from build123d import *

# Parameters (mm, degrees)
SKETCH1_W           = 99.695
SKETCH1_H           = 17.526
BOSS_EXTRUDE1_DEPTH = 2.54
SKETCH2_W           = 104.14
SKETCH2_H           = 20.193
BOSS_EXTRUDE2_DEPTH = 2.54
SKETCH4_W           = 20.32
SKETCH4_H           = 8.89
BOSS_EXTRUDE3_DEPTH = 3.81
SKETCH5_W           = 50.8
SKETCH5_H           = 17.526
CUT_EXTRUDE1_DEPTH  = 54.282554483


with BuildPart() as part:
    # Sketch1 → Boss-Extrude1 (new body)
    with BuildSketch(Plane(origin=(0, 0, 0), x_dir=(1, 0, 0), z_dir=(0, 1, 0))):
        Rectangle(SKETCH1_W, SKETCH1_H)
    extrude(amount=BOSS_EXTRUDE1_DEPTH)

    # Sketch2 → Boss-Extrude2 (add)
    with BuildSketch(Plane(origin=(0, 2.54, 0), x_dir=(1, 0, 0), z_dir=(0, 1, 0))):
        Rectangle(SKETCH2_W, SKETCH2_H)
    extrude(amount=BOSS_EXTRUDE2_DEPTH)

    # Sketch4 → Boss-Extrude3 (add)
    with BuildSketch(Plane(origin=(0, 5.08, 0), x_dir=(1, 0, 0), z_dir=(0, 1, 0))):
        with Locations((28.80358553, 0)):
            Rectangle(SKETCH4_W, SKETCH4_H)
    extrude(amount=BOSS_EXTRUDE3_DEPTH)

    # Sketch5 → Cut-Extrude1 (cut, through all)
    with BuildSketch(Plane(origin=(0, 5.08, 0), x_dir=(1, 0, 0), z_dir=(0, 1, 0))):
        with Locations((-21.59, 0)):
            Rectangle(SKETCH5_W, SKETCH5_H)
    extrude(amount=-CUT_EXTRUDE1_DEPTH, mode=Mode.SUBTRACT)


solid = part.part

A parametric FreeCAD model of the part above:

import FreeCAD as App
import Part
import Sketcher

V = App.Vector
Q = App.Units.Quantity


def add_polygon(sketch, points):
    """Adds a closed chain of lines whose ends are joined by coincident constraints."""
    first, n = sketch.GeometryCount, len(points)
    for a, b in zip(points, points[1:] + points[:1]):
        sketch.addGeometry(Part.LineSegment(App.Vector(*a, 0), App.Vector(*b, 0)), False)
    for i in range(n):
        sketch.addConstraint(Sketcher.Constraint("Coincident", first + i, 2, first + (i + 1) % n, 1))

doc = App.newDocument("Part")
body = doc.addObject("PartDesign::Body", "Body")

sketch1 = body.newObject("Sketcher::SketchObject", "Sketch")
sketch1.AttachmentSupport = (doc.getObject("XZ_Plane"), [""])
sketch1.MapMode = "FlatFace"
add_polygon(sketch1, [(-49.8475, -8.763), (-49.8475, 8.763), (49.8475, 8.763), (49.8475, -8.763)])
sketch1.addConstraint(Sketcher.Constraint("Vertical", 0))
sketch1.addConstraint(Sketcher.Constraint("Horizontal", 1))
sketch1.addConstraint(Sketcher.Constraint("Vertical", 2))
sketch1.addConstraint(Sketcher.Constraint("Horizontal", 3))
sketch1.addConstraint(Sketcher.Constraint("Symmetric", 0, 2, 2, 2, -1, 1))
sketch1.addConstraint(Sketcher.Constraint("DistanceY", 0, 1, 0, 2, Q("0.69 in")))
sketch1.addConstraint(Sketcher.Constraint("DistanceX", 1, 1, 1, 2, Q("3.925 in")))
pad1 = body.newObject("PartDesign::Pad", "Pad")
pad1.Profile = sketch1
pad1.Length = Q("0.1 in")
pad1.Reversed = True

sketch2 = body.newObject("Sketcher::SketchObject", "Sketch001")
sketch2.AttachmentSupport = (doc.getObject("XZ_Plane"), [""])
sketch2.MapMode = "FlatFace"
sketch2.AttachmentOffset = App.Placement(V(0, 0, -0.1 * 25.4), App.Rotation())
add_polygon(sketch2, [(-52.07, -10.0965), (-52.07, 10.0965), (52.07, 10.0965), (52.07, -10.0965)])
sketch2.addConstraint(Sketcher.Constraint("Vertical", 0))
sketch2.addConstraint(Sketcher.Constraint("Horizontal", 1))
sketch2.addConstraint(Sketcher.Constraint("Vertical", 2))
sketch2.addConstraint(Sketcher.Constraint("Horizontal", 3))
sketch2.addConstraint(Sketcher.Constraint("Symmetric", 0, 2, 2, 2, -1, 1))
sketch2.addConstraint(Sketcher.Constraint("DistanceX", 1, 1, 1, 2, Q("4.1 in")))
sketch2.addConstraint(Sketcher.Constraint("DistanceY", 0, 1, 0, 2, Q("0.795 in")))
pad2 = body.newObject("PartDesign::Pad", "Pad001")
pad2.Profile = sketch2
pad2.Length = Q("0.1 in")
pad2.Reversed = True

sketch3 = body.newObject("Sketcher::SketchObject", "Sketch002")
sketch3.AttachmentSupport = (doc.getObject("XZ_Plane"), [""])
sketch3.MapMode = "FlatFace"
sketch3.AttachmentOffset = App.Placement(V(0, 0, -0.2 * 25.4), App.Rotation())
add_polygon(sketch3, [(18.643586, -4.445), (18.643586, 4.445), (38.963586, 4.445), (38.963586, -4.445)])
sketch3.addConstraint(Sketcher.Constraint("Vertical", 0))
sketch3.addConstraint(Sketcher.Constraint("Horizontal", 1))
sketch3.addConstraint(Sketcher.Constraint("Vertical", 2))
sketch3.addConstraint(Sketcher.Constraint("Horizontal", 3))
sketch3.addConstraint(Sketcher.Constraint("DistanceX", 1, 1, 1, 2, Q("0.8 in")))
sketch3.addConstraint(Sketcher.Constraint("DistanceY", 0, 1, 0, 2, Q("0.35 in")))
sketch3.addConstraint(Sketcher.Constraint("DistanceY", -1, 1, 0, 2, Q("0.175 in")))
sketch3.addConstraint(Sketcher.Constraint("DistanceX", -1, 1, 0, 2, Q("18.643586 mm")))
pad3 = body.newObject("PartDesign::Pad", "Pad002")
pad3.Profile = sketch3
pad3.Length = Q("0.15 in")
pad3.Reversed = True

sketch4 = body.newObject("Sketcher::SketchObject", "Sketch003")
sketch4.AttachmentSupport = (doc.getObject("XZ_Plane"), [""])
sketch4.MapMode = "FlatFace"
sketch4.AttachmentOffset = App.Placement(V(0, 0, -0.2 * 25.4), App.Rotation())
add_polygon(sketch4, [(-46.99, -8.763), (-46.99, 8.763), (3.81, 8.763), (3.81, -8.763)])
sketch4.addConstraint(Sketcher.Constraint("Vertical", 0))
sketch4.addConstraint(Sketcher.Constraint("Horizontal", 1))
sketch4.addConstraint(Sketcher.Constraint("Vertical", 2))
sketch4.addConstraint(Sketcher.Constraint("Horizontal", 3))
sketch4.addConstraint(Sketcher.Constraint("DistanceX", 1, 1, 1, 2, Q("2 in")))
sketch4.addConstraint(Sketcher.Constraint("DistanceY", 0, 1, 0, 2, Q("0.69 in")))
sketch4.addConstraint(Sketcher.Constraint("DistanceX", 0, 2, -1, 1, Q("1.85 in")))
sketch4.addConstraint(Sketcher.Constraint("DistanceY", -1, 1, 0, 2, Q("0.345 in")))
pocket1 = body.newObject("PartDesign::Pocket", "Pocket")
pocket1.Profile = sketch4
pocket1.Type = "ThroughAll"
pocket1.Reversed = True

doc.recompute()
